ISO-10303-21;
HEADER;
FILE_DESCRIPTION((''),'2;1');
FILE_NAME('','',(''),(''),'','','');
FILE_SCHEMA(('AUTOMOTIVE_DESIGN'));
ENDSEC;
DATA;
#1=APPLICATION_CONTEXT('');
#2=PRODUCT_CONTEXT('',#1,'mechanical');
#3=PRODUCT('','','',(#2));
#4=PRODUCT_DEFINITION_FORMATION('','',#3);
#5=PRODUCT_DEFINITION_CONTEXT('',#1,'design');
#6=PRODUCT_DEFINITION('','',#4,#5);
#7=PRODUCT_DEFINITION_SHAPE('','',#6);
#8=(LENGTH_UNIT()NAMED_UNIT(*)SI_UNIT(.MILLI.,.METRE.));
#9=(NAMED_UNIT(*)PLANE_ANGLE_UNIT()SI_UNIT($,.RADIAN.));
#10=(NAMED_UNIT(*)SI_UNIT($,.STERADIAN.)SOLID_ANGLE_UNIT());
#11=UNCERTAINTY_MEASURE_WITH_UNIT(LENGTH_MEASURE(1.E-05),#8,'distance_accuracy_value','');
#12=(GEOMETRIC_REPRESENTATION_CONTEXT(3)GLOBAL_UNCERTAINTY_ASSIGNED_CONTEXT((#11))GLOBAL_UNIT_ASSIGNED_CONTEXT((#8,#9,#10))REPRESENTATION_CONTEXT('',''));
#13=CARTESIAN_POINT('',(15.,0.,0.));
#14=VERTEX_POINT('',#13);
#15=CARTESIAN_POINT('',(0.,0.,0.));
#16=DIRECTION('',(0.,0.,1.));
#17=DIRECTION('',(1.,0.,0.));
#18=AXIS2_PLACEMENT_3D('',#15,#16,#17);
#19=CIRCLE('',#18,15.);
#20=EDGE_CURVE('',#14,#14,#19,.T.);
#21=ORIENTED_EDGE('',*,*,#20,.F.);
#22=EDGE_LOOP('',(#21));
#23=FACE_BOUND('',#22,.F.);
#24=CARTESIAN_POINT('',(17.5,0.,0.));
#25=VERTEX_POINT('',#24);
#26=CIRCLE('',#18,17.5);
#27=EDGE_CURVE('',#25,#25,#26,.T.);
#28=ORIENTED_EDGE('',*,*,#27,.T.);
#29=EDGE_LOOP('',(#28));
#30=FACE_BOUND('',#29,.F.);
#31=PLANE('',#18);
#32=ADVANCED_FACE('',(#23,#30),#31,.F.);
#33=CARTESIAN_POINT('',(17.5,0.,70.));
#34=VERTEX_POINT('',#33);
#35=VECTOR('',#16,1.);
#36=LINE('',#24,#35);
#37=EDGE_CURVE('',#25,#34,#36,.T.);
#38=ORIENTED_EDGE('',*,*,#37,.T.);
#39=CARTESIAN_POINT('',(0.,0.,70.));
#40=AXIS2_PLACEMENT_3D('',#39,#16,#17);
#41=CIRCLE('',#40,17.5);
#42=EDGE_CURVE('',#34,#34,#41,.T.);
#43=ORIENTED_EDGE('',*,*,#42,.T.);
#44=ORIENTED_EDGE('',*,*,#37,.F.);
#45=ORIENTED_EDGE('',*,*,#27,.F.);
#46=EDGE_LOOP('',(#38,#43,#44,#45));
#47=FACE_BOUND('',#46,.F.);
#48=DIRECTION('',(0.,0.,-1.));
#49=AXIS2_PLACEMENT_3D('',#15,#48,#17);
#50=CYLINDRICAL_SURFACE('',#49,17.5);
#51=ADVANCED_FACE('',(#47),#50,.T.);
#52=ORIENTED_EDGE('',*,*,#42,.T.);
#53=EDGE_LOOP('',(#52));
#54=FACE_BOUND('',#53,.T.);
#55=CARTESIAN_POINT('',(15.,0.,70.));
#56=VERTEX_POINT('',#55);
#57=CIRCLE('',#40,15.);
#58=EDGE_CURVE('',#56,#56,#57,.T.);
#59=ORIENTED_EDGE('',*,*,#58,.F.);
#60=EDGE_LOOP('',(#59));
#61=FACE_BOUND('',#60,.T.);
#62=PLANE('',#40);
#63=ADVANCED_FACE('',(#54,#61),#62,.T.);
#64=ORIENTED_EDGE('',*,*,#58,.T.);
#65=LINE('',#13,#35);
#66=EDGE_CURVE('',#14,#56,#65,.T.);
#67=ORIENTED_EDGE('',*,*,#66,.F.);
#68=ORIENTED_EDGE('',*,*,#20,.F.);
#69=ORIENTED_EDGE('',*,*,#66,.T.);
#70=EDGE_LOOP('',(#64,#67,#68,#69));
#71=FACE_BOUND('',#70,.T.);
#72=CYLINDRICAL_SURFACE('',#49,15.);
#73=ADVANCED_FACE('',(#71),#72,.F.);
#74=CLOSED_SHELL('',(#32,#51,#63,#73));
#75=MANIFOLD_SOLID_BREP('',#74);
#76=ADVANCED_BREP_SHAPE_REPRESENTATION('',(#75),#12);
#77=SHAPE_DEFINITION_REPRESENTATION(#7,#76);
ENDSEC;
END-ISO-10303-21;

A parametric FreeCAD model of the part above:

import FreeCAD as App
import Part
import Sketcher

V = App.Vector

doc = App.newDocument("Part")
body = doc.addObject("PartDesign::Body", "Body")

# Sketch on XY plane
sketch1 = body.newObject("Sketcher::SketchObject", "Sketch")
sketch1.AttachmentSupport = (doc.getObject("XY_Plane"), [""])
sketch1.MapMode = "FlatFace"
sketch1.addGeometry(Part.Circle(V(0, 0, 0), V(0, 0, 1), 17.5), False)
sketch1.addConstraint([
    Sketcher.Constraint("Coincident", 0, 3, -1, 1),
    Sketcher.Constraint("Diameter", 0, 35.0),
])
pad1 = body.newObject("PartDesign::Pad", "Pad")
pad1.Profile = sketch1
pad1.Length = 70

# Sketch on XY plane
sketch2 = body.newObject("Sketcher::SketchObject", "Sketch001")
sketch2.AttachmentSupport = (doc.getObject("XY_Plane"), [""])
sketch2.MapMode = "FlatFace"
sketch2.addGeometry(Part.Circle(V(0, 0, 0), V(0, 0, 1), 15), False)
sketch2.addConstraint([
    Sketcher.Constraint("Coincident", 0, 3, -1, 1),
    Sketcher.Constraint("Diameter", 0, 30.0),
])
pocket1 = body.newObject("PartDesign::Pocket", "Pocket")
pocket1.Profile = sketch2
pocket1.Length = 70
pocket1.Reversed = True

doc.recompute()
